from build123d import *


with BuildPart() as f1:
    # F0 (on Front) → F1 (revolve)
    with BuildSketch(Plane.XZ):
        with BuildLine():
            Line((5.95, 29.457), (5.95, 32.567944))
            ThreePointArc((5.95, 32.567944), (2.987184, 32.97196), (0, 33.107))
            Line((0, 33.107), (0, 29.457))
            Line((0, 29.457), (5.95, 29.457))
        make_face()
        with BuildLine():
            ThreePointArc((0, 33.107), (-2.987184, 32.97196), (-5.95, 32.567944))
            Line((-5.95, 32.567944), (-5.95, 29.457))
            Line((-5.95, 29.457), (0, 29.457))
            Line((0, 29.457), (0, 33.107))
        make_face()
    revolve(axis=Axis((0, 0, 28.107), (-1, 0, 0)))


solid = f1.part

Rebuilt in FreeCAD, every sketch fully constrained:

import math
import FreeCAD as App
import Part
import Sketcher
from FreeCAD import Vector

doc = App.newDocument("Part")
params = doc.addObject("Spreadsheet::Sheet", "Params")
for row, (alias, value) in enumerate([
    ("sketch1_width", "11.9 mm"),
    ("revolution_angle", "360 deg"),
], start=1):
    params.set(f"A{row}", alias)
    params.set(f"B{row}", "=" + value)
    params.setAlias(f"B{row}", alias)

body = doc.addObject("PartDesign::Body", "Body")

# Sketch on XZ plane
sketch1 = body.newObject("Sketcher::SketchObject", "Sketch")
sketch1.AttachmentSupport = (doc.getObject("XZ_Plane"), [""])
sketch1.MapMode = "FlatFace"
sketch1.addGeometry(Part.LineSegment(Vector(5.95, 29.457, 0), Vector(5.95, 32.567944, 0)), False)
sketch1.addGeometry(Part.ArcOfCircle(Part.Circle(Vector(-0.000014, -0.000178, 0), Vector(0, 0, 1), 33.107178), math.radians(79.646563), math.radians(89.999976)), False)
sketch1.addGeometry(Part.ArcOfCircle(Part.Circle(Vector(0.000014, -0.000178, 0), Vector(0, 0, 1), 33.107178), math.radians(90.000024), math.radians(100.353437)), False)
sketch1.addGeometry(Part.LineSegment(Vector(-5.95, 32.567944, 0), Vector(-5.95, 29.457, 0)), False)
sketch1.addGeometry(Part.LineSegment(Vector(-5.95, 29.457, 0), Vector(5.95, 29.457, 0)), False)
sketch1.addGeometry(Part.LineSegment(Vector(5.95, 28.107, 0), Vector(-5.95, 28.107, 0)), True)  # axis
sketch1.addConstraint(Sketcher.Constraint("Coincident", 0, 2, 1, 1))
sketch1.addConstraint(Sketcher.Constraint("Tangent", 1, 2, 2, 1))
sketch1.addConstraint(Sketcher.Constraint("Coincident", 2, 2, 3, 1))
sketch1.addConstraint(Sketcher.Constraint("Coincident", 3, 2, 4, 1))
sketch1.addConstraint(Sketcher.Constraint("Coincident", 4, 2, 0, 1))
sketch1.addConstraint(Sketcher.Constraint("Vertical", 0))
sketch1.addConstraint(Sketcher.Constraint("Vertical", 3))
sketch1.addConstraint(Sketcher.Constraint("Horizontal", 4))
sketch1.addConstraint(Sketcher.Constraint("Horizontal", 5))
sketch1.addConstraint(Sketcher.Constraint("Equal", 1, 2))
sketch1.addConstraint(Sketcher.Constraint("Symmetric", 0, 2, 2, 2, -2))
sketch1.addConstraint(Sketcher.Constraint("PointOnObject", 1, 2, -2))
sketch1.addConstraint(Sketcher.Constraint("Vertical", 4, 2, 5, 1))
sketch1.addConstraint(Sketcher.Constraint("Vertical", 3, 2, 5, 2))
sketch1.addConstraint(Sketcher.Constraint("DistanceX", 4, 1, 4, 2, 11.9))
sketch1.addConstraint(Sketcher.Constraint("DistanceY", 5, 1, 1, 2, 5.0))
sketch1.addConstraint(Sketcher.Constraint("DistanceY", 3, 2, 1, 2, 3.65))
sketch1.addConstraint(Sketcher.Constraint("DistanceY", -1, 1, 1, 2, 33.107))
sketch1.addConstraint(Sketcher.Constraint("Radius", 1, 33.107178))
sketch1.setExpression("Constraints[14]", "Params.sketch1_width")
revolution = body.newObject("PartDesign::Revolution", "Revolution")
revolution.Profile = sketch1
revolution.ReferenceAxis = (sketch1, ["Axis0"])
revolution.setExpression("Angle", "Params.revolution_angle")

doc.recompute()
